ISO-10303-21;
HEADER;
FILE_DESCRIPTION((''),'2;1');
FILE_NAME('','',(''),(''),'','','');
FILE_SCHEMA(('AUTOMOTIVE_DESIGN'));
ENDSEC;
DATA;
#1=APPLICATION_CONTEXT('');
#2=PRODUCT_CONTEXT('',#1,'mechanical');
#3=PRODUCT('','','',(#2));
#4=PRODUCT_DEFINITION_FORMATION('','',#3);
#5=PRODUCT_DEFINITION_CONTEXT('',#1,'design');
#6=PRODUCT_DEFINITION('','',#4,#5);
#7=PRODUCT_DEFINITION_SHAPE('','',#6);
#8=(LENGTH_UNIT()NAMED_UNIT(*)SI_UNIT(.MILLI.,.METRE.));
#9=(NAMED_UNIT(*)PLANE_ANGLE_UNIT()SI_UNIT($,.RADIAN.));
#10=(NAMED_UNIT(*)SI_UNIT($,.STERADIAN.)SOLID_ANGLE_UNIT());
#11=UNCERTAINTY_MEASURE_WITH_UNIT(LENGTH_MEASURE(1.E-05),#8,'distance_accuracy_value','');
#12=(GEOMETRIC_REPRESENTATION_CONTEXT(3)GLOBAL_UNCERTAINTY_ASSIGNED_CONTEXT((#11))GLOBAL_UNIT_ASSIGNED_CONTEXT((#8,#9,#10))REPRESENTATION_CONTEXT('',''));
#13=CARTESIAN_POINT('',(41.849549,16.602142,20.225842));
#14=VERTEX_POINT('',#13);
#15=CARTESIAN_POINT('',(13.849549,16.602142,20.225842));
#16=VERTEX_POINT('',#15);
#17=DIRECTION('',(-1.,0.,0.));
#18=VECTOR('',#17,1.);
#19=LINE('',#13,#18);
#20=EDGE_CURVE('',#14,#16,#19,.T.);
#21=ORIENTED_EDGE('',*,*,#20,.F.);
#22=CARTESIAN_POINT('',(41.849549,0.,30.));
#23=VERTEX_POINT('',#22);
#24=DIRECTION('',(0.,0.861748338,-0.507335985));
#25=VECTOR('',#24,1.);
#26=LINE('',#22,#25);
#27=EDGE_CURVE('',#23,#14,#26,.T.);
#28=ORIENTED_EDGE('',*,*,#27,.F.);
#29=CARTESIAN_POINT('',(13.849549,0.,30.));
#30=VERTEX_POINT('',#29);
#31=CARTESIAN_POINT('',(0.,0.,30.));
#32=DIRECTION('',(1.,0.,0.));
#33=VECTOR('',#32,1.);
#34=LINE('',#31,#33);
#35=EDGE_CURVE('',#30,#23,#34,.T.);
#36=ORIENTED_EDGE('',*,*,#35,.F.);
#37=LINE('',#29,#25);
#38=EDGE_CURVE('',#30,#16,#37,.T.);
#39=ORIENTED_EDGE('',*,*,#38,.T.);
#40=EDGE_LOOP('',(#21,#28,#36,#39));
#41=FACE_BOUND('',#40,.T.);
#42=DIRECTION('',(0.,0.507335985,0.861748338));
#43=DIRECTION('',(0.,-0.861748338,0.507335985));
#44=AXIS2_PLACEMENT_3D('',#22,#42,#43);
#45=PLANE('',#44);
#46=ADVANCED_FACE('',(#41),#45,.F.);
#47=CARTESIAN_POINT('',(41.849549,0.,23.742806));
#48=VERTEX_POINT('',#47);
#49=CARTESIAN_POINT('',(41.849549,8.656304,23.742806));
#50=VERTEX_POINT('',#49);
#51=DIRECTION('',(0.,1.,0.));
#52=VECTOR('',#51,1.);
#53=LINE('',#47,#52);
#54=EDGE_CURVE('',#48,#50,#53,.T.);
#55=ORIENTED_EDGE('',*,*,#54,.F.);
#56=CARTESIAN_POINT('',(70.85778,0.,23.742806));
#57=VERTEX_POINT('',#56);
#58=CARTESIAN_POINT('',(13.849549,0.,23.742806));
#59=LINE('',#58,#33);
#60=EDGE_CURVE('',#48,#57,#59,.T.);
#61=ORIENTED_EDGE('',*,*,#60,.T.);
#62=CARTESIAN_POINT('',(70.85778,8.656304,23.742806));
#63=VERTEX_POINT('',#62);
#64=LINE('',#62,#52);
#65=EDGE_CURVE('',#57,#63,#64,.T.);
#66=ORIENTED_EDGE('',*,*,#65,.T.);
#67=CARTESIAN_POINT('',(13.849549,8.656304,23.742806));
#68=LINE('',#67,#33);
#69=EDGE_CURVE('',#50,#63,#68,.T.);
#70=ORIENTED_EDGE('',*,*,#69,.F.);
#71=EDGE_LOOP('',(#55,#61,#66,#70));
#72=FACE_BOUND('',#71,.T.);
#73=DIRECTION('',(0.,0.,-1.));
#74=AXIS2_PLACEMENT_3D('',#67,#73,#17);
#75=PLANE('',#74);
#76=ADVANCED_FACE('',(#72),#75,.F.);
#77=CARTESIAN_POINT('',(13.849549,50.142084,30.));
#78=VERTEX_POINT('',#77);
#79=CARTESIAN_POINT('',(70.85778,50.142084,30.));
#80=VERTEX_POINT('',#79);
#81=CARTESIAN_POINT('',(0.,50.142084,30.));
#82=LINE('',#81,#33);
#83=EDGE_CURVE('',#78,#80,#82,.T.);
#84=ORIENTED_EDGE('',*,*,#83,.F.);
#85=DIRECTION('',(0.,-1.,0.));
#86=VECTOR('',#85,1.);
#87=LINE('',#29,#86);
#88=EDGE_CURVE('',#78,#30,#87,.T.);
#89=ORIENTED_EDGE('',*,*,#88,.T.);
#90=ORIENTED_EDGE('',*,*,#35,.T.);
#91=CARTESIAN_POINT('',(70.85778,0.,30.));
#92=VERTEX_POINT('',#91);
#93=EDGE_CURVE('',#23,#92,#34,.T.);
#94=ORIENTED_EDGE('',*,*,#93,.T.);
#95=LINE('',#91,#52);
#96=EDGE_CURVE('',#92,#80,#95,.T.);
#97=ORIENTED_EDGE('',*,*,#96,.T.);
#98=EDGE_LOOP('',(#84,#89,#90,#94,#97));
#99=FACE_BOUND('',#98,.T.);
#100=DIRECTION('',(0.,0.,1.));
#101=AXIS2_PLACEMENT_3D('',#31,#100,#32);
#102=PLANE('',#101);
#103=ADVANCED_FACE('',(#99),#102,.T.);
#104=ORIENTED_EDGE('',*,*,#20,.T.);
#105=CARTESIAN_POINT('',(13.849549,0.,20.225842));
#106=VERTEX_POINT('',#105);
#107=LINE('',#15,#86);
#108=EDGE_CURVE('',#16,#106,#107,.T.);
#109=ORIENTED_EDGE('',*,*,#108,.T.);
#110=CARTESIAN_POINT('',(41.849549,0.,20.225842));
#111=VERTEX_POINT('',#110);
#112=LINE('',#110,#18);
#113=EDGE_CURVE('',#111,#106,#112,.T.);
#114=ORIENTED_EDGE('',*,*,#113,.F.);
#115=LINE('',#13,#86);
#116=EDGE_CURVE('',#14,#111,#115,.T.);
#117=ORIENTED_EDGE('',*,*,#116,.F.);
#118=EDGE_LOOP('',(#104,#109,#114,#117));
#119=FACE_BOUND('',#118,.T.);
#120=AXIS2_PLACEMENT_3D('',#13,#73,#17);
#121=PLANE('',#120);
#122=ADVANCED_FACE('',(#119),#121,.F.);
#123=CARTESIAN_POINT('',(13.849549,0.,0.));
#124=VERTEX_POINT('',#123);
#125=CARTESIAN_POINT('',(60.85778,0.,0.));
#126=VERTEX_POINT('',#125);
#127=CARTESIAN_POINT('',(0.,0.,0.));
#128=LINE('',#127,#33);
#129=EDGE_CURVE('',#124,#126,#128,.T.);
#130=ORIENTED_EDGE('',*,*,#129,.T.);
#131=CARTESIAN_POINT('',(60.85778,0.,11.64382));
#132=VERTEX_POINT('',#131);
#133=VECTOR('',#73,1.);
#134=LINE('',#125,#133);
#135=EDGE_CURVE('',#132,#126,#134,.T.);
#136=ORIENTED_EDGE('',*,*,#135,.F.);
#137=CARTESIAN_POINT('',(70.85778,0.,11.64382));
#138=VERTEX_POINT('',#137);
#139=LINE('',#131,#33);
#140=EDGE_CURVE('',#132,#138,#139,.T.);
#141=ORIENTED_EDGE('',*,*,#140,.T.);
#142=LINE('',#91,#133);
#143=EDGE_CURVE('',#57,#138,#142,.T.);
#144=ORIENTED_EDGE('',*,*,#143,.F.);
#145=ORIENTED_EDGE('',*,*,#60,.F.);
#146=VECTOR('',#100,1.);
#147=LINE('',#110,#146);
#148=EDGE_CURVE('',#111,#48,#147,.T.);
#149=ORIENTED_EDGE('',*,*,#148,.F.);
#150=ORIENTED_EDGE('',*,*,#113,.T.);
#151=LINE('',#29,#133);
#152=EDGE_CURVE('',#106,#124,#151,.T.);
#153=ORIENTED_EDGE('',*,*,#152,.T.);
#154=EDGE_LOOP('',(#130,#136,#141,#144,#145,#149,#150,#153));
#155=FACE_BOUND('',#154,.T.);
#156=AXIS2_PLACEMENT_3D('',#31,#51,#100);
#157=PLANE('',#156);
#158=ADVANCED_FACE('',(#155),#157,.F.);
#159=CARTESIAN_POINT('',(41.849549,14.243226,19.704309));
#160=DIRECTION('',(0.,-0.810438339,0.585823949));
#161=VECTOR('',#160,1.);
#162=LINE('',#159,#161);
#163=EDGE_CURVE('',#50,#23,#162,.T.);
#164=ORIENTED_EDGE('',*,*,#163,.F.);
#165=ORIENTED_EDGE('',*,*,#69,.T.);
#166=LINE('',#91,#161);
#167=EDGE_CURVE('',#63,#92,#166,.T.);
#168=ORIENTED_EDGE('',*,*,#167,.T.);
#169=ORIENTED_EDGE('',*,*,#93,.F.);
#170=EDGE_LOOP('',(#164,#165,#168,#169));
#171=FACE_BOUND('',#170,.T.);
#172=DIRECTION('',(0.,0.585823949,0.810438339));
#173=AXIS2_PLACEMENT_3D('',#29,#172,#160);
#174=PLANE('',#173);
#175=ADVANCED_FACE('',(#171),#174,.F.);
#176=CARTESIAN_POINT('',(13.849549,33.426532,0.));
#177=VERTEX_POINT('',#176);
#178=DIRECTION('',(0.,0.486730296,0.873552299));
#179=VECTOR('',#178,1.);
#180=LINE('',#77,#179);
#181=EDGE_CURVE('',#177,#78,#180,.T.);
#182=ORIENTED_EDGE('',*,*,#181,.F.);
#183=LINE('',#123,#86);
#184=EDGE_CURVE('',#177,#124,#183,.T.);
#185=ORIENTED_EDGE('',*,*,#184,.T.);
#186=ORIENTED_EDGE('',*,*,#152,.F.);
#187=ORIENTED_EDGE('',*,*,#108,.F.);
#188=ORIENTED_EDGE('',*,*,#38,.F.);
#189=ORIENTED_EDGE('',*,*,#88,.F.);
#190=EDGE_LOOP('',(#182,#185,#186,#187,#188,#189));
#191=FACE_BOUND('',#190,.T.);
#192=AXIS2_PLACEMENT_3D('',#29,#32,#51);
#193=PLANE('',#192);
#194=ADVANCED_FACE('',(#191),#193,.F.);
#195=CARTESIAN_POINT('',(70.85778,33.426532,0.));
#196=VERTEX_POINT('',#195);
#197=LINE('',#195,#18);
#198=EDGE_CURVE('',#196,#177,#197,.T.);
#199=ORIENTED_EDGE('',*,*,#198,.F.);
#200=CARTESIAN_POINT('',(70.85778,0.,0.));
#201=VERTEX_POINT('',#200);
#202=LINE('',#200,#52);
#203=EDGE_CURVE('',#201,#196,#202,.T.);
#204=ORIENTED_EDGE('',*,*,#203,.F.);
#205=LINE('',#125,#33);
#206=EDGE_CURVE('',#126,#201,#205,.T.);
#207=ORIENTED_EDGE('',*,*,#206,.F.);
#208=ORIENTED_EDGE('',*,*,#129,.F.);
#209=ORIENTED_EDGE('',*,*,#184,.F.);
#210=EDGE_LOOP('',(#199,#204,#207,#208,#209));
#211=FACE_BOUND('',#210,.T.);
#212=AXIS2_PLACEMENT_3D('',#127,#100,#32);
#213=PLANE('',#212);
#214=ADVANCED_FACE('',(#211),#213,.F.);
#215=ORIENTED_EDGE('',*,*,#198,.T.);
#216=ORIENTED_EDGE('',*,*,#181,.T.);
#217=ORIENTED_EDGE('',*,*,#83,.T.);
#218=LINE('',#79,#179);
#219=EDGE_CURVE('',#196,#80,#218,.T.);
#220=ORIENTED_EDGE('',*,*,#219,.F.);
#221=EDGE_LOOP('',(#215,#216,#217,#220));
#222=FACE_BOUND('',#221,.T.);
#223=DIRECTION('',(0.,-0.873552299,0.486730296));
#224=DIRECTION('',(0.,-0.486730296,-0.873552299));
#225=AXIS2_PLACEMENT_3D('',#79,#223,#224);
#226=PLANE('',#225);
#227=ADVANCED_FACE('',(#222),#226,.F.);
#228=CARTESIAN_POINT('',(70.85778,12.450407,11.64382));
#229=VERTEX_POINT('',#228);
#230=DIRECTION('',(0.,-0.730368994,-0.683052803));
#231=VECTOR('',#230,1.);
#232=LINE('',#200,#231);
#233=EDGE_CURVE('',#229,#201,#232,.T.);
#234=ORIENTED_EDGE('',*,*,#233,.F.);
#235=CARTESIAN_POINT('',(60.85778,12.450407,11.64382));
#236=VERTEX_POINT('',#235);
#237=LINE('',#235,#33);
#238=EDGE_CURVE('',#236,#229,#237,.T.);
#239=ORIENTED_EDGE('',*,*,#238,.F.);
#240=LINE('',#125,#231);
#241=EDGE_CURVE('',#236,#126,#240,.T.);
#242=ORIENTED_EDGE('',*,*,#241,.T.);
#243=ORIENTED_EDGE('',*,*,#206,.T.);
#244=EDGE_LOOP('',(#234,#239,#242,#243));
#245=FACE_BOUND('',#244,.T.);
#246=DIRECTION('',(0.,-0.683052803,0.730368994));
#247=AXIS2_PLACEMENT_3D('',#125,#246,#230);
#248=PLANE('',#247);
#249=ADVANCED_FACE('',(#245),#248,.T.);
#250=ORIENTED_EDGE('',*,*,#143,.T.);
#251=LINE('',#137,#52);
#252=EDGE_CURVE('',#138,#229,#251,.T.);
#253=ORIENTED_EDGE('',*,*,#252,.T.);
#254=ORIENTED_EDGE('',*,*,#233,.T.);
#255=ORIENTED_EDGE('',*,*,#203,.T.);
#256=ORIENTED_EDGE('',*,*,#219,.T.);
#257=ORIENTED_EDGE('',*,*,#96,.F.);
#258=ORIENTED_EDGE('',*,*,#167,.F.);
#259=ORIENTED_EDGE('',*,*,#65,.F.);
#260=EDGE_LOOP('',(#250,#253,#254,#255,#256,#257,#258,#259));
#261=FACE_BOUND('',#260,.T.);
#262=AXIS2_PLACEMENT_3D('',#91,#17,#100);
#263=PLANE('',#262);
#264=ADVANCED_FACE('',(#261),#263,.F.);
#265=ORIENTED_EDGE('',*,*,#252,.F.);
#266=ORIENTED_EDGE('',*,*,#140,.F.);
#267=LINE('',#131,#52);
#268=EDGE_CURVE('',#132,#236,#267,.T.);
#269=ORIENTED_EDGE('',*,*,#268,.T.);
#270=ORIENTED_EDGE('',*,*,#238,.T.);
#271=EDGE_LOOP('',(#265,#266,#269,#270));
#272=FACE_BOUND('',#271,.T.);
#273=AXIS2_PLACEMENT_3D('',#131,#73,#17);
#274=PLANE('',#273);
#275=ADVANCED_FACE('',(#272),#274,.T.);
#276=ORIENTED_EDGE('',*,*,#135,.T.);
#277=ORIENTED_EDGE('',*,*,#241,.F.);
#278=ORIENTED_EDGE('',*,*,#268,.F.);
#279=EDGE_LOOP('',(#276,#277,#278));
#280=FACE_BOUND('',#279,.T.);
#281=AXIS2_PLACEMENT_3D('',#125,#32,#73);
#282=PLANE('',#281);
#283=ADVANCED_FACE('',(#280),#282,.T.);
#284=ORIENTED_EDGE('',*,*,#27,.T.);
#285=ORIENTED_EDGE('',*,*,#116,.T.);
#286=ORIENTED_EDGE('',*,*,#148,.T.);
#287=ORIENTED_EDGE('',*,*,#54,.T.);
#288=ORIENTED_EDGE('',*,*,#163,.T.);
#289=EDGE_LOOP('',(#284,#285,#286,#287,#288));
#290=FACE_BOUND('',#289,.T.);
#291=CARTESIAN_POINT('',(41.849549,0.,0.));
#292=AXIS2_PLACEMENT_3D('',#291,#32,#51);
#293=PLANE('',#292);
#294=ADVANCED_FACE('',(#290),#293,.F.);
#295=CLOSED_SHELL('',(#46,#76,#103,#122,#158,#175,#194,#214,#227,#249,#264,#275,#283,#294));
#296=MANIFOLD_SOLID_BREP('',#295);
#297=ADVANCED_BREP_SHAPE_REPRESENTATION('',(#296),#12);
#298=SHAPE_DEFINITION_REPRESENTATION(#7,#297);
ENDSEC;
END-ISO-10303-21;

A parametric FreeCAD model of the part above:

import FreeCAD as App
import Part
import Sketcher
Q = App.Units.Quantity

doc = App.newDocument("Part")
body = doc.addObject("PartDesign::Body", "Body")

sketch1 = body.newObject("Sketcher::SketchObject", "Sketch")
sketch1.AttachmentSupport = (doc.getObject("XY_Plane"), [""])
sketch1.MapMode = "FlatFace"
sketch1.addGeometry(Part.LineSegment(App.Vector(13.849549, 50.142084, 0), App.Vector(13.849549, 0, 0)), False)
sketch1.addGeometry(Part.LineSegment(App.Vector(13.849549, 0, 0), App.Vector(70.85778, 0, 0)), False)
sketch1.addGeometry(Part.LineSegment(App.Vector(70.85778, 0, 0), App.Vector(70.85778, 50.142084, 0)), False)
sketch1.addGeometry(Part.LineSegment(App.Vector(70.85778, 50.142084, 0), App.Vector(13.849549, 50.142084, 0)), False)
sketch1.addConstraint(Sketcher.Constraint("Coincident", 0, 2, 1, 1))
sketch1.addConstraint(Sketcher.Constraint("Coincident", 1, 2, 2, 1))
sketch1.addConstraint(Sketcher.Constraint("Coincident", 2, 2, 3, 1))
sketch1.addConstraint(Sketcher.Constraint("Coincident", 3, 2, 0, 1))
sketch1.addConstraint(Sketcher.Constraint("Vertical", 0))
sketch1.addConstraint(Sketcher.Constraint("Horizontal", 1))
sketch1.addConstraint(Sketcher.Constraint("Vertical", 2))
sketch1.addConstraint(Sketcher.Constraint("Horizontal", 3))
sketch1.addConstraint(Sketcher.Constraint("PointOnObject", 0, 2, -1))
sketch1.addConstraint(Sketcher.Constraint("DistanceX", 1, 1, 1, 2, Q("57.008231 mm")))
sketch1.addConstraint(Sketcher.Constraint("DistanceY", 0, 2, 0, 1, Q("50.142084 mm")))
sketch1.addConstraint(Sketcher.Constraint("DistanceX", -1, 1, 0, 2, Q("13.849549 mm")))
pad1 = body.newObject("PartDesign::Pad", "Pad")
pad1.Profile = sketch1
pad1.Length = 30

sketch2 = body.newObject("Sketcher::SketchObject", "Sketch001")
sketch2.AttachmentSupport = (doc.getObject("YZ_Plane"), [""])
sketch2.MapMode = "FlatFace"
sketch2.AttachmentOffset = App.Placement(App.Vector(0, 0, 13.849549), App.Rotation())
sketch2.addGeometry(Part.LineSegment(App.Vector(33.426532, 0, 0), App.Vector(50.142084, 30, 0)), False)
sketch2.addGeometry(Part.LineSegment(App.Vector(50.142084, 30, 0), App.Vector(50.142084, 0, 0)), False)
sketch2.addGeometry(Part.LineSegment(App.Vector(50.142084, 0, 0), App.Vector(33.426532, 0, 0)), False)
sketch2.addConstraint(Sketcher.Constraint("Coincident", 0, 2, 1, 1))
sketch2.addConstraint(Sketcher.Constraint("Coincident", 1, 2, 2, 1))
sketch2.addConstraint(Sketcher.Constraint("Coincident", 2, 2, 0, 1))
sketch2.addConstraint(Sketcher.Constraint("Vertical", 1))
sketch2.addConstraint(Sketcher.Constraint("Horizontal", 2))
sketch2.addConstraint(Sketcher.Constraint("PointOnObject", 1, 2, -1))
sketch2.addConstraint(Sketcher.Constraint("DistanceY", 1, 2, 1, 1, Q("30 mm")))
sketch2.addConstraint(Sketcher.Constraint("DistanceX", 2, 2, 2, 1, Q("16.715552 mm")))
sketch2.addConstraint(Sketcher.Constraint("DistanceX", -1, 1, 2, 2, Q("33.426532 mm")))
pocket1 = body.newObject("PartDesign::Pocket", "Pocket")
pocket1.Profile = sketch2
pocket1.Type = "ThroughAll"
pocket1.Reversed = True

sketch3 = body.newObject("Sketcher::SketchObject", "Sketch002")
sketch3.AttachmentSupport = (doc.getObject("YZ_Plane"), [""])
sketch3.MapMode = "FlatFace"
sketch3.AttachmentOffset = App.Placement(App.Vector(0, 0, 70.85778), App.Rotation())
sketch3.addGeometry(Part.LineSegment(App.Vector(12.450407, 11.64382, 0), App.Vector(0, 11.64382, 0)), False)
sketch3.addGeometry(Part.LineSegment(App.Vector(0, 11.64382, 0), App.Vector(0, 0, 0)), False)
sketch3.addGeometry(Part.LineSegment(App.Vector(0, 0, 0), App.Vector(12.450407, 11.64382, 0)), False)
sketch3.addConstraint(Sketcher.Constraint("Coincident", 0, 2, 1, 1))
sketch3.addConstraint(Sketcher.Constraint("Coincident", 1, 2, 2, 1))
sketch3.addConstraint(Sketcher.Constraint("Coincident", 2, 2, 0, 1))
sketch3.addConstraint(Sketcher.Constraint("Horizontal", 0))
sketch3.addConstraint(Sketcher.Constraint("Vertical", 1))
sketch3.addConstraint(Sketcher.Constraint("Coincident", 1, 2, -1, 1))
sketch3.addConstraint(Sketcher.Constraint("DistanceY", 1, 2, 1, 1, Q("11.64382 mm")))
sketch3.addConstraint(Sketcher.Constraint("DistanceX", 0, 2, 0, 1, Q("12.450407 mm")))
pocket2 = body.newObject("PartDesign::Pocket", "Pocket001")
pocket2.Profile = sketch3
pocket2.Length = 10

sketch4 = body.newObject("Sketcher::SketchObject", "Sketch003")
sketch4.AttachmentSupport = (doc.getObject("YZ_Plane"), [""])
sketch4.MapMode = "FlatFace"
sketch4.AttachmentOffset = App.Placement(App.Vector(0, 0, 13.849549), App.Rotation())
sketch4.addGeometry(Part.LineSegment(App.Vector(0, 30, 0), App.Vector(16.602142, 20.225842, 0)), False)
sketch4.addGeometry(Part.LineSegment(App.Vector(16.602142, 20.225842, 0), App.Vector(0, 20.225842, 0)), False)
sketch4.addGeometry(Part.LineSegment(App.Vector(0, 20.225842, 0), App.Vector(0, 30, 0)), False)
sketch4.addConstraint(Sketcher.Constraint("Coincident", 0, 2, 1, 1))
sketch4.addConstraint(Sketcher.Constraint("Coincident", 1, 2, 2, 1))
sketch4.addConstraint(Sketcher.Constraint("Coincident", 2, 2, 0, 1))
sketch4.addConstraint(Sketcher.Constraint("Horizontal", 1))
sketch4.addConstraint(Sketcher.Constraint("Vertical", 2))
sketch4.addConstraint(Sketcher.Constraint("PointOnObject", 1, 2, -2))
sketch4.addConstraint(Sketcher.Constraint("DistanceY", -1, 1, 2, 2, Q("30 mm")))
sketch4.addConstraint(Sketcher.Constraint("Distance", 0, Q("19.265651 mm")))
sketch4.addConstraint(Sketcher.Constraint("DistanceX", 1, 2, 1, 1, Q("16.602142 mm")))
pocket3 = body.newObject("PartDesign::Pocket", "Pocket002")
pocket3.Profile = sketch4
pocket3.Length = 28
pocket3.Reversed = True

sketch5 = body.newObject("Sketcher::SketchObject", "Sketch004")
sketch5.AttachmentSupport = (doc.getObject("YZ_Plane"), [""])
sketch5.MapMode = "FlatFace"
sketch5.AttachmentOffset = App.Placement(App.Vector(0, 0, 70.85778), App.Rotation())
sketch5.addGeometry(Part.LineSegment(App.Vector(8.656304, 23.742806, 0), App.Vector(0, 30, 0)), False)
sketch5.addGeometry(Part.LineSegment(App.Vector(0, 30, 0), App.Vector(0, 23.742806, 0)), False)
sketch5.addGeometry(Part.LineSegment(App.Vector(0, 23.742806, 0), App.Vector(8.656304, 23.742806, 0)), False)
sketch5.addConstraint(Sketcher.Constraint("Coincident", 0, 2, 1, 1))
sketch5.addConstraint(Sketcher.Constraint("Coincident", 1, 2, 2, 1))
sketch5.addConstraint(Sketcher.Constraint("Coincident", 2, 2, 0, 1))
sketch5.addConstraint(Sketcher.Constraint("Vertical", 1))
sketch5.addConstraint(Sketcher.Constraint("Horizontal", 2))
sketch5.addConstraint(Sketcher.Constraint("PointOnObject", 0, 2, -2))
sketch5.addConstraint(Sketcher.Constraint("DistanceY", -1, 1, 0, 2, Q("30 mm")))
sketch5.addConstraint(Sketcher.Constraint("DistanceX", 2, 1, 2, 2, Q("8.656304 mm")))
sketch5.addConstraint(Sketcher.Constraint("DistanceY", 1, 2, 1, 1, Q("6.257194 mm")))
pocket4 = body.newObject("PartDesign::Pocket", "Pocket003")
pocket4.Profile = sketch5
pocket4.Type = "ThroughAll"

doc.recompute()
